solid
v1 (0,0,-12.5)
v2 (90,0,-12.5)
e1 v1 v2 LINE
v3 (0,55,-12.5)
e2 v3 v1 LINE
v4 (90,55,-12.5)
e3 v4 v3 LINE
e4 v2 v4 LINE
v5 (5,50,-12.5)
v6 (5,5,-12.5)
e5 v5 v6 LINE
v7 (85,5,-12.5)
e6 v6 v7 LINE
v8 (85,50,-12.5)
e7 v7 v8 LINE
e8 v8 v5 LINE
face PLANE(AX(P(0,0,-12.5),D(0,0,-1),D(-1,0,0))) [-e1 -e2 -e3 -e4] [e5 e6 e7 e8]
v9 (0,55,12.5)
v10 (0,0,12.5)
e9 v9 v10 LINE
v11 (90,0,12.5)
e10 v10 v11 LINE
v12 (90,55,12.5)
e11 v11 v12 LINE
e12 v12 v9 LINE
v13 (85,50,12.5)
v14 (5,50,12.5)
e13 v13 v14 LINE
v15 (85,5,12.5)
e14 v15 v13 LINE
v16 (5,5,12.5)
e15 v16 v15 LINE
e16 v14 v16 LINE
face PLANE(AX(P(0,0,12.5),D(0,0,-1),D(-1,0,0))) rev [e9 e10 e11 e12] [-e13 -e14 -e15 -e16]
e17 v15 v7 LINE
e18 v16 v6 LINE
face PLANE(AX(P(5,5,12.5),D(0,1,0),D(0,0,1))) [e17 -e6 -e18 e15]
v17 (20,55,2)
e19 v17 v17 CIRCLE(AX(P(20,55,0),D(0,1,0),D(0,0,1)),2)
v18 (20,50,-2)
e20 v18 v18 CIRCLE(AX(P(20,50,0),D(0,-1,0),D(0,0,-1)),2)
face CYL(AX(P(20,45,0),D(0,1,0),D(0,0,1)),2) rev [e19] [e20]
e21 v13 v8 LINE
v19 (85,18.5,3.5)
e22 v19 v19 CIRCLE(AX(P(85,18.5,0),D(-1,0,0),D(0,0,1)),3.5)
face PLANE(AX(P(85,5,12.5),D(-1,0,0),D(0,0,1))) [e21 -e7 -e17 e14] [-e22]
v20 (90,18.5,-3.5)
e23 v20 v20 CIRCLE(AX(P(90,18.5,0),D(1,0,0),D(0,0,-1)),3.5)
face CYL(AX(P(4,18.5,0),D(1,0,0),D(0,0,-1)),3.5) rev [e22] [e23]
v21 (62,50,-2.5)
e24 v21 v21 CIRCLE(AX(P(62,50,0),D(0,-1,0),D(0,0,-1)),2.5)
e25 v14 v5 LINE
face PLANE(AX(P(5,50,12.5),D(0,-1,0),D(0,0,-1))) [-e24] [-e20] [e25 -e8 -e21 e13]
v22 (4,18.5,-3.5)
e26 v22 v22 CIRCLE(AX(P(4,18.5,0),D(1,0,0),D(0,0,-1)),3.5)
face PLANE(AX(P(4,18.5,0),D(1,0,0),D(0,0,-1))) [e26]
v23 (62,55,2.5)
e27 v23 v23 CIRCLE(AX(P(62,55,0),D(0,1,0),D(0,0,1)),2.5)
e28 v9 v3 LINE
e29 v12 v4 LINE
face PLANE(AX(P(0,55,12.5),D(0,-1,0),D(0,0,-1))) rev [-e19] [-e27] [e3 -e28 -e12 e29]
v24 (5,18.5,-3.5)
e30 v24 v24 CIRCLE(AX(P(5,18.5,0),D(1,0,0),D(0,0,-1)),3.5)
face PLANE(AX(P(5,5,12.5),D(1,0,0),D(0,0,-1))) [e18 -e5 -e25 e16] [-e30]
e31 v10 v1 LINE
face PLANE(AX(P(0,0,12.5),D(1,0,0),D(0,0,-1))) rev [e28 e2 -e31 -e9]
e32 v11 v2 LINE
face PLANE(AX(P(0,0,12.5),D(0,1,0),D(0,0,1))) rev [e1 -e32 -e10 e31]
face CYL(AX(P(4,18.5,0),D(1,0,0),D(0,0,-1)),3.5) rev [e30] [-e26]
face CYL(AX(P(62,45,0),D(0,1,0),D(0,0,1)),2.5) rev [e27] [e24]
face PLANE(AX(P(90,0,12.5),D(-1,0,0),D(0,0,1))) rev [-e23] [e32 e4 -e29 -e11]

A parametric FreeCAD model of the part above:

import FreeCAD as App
import Part
import Sketcher
from FreeCAD import Vector
Q = App.Units.Quantity

doc = App.newDocument("Part")
body = doc.addObject("PartDesign::Body", "Body")

# Sketch on XY plane
sketch1 = doc.addObject("Sketcher::SketchObject", "Sketch")
body.addObject(sketch1)
sketch1.AttachmentSupport = (doc.XY_Plane, [""])
sketch1.MapMode = "FlatFace"
sketch1.addGeometry(Part.LineSegment(Vector(0, 55, 0), Vector(0, 0, 0)), False)
sketch1.addGeometry(Part.LineSegment(Vector(0, 0, 0), Vector(90, 0, 0)), False)
sketch1.addGeometry(Part.LineSegment(Vector(90, 0, 0), Vector(90, 55, 0)), False)
sketch1.addGeometry(Part.LineSegment(Vector(90, 55, 0), Vector(0, 55, 0)), False)
sketch1.addGeometry(Part.LineSegment(Vector(85, 5, 0), Vector(5, 5, 0)), False)
sketch1.addGeometry(Part.LineSegment(Vector(5, 5, 0), Vector(5, 50, 0)), False)
sketch1.addGeometry(Part.LineSegment(Vector(5, 50, 0), Vector(85, 50, 0)), False)
sketch1.addGeometry(Part.LineSegment(Vector(85, 50, 0), Vector(85, 5, 0)), False)
sketch1.addConstraint(Sketcher.Constraint("Coincident", 0, 2, 1, 1))
sketch1.addConstraint(Sketcher.Constraint("Coincident", 1, 2, 2, 1))
sketch1.addConstraint(Sketcher.Constraint("Coincident", 2, 2, 3, 1))
sketch1.addConstraint(Sketcher.Constraint("Coincident", 3, 2, 0, 1))
sketch1.addConstraint(Sketcher.Constraint("Coincident", 4, 2, 5, 1))
sketch1.addConstraint(Sketcher.Constraint("Coincident", 5, 2, 6, 1))
sketch1.addConstraint(Sketcher.Constraint("Coincident", 6, 2, 7, 1))
sketch1.addConstraint(Sketcher.Constraint("Coincident", 7, 2, 4, 1))
sketch1.addConstraint(Sketcher.Constraint("Vertical", 0))
sketch1.addConstraint(Sketcher.Constraint("Horizontal", 1))
sketch1.addConstraint(Sketcher.Constraint("Vertical", 2))
sketch1.addConstraint(Sketcher.Constraint("Horizontal", 3))
sketch1.addConstraint(Sketcher.Constraint("Horizontal", 4))
sketch1.addConstraint(Sketcher.Constraint("Vertical", 5))
sketch1.addConstraint(Sketcher.Constraint("Horizontal", 6))
sketch1.addConstraint(Sketcher.Constraint("Vertical", 7))
sketch1.addConstraint(Sketcher.Constraint("Coincident", 0, 2, -1, 1))
sketch1.addConstraint(Sketcher.Constraint("DistanceX", 1, 1, 1, 2, Q("90 mm")))
sketch1.addConstraint(Sketcher.Constraint("DistanceX", 4, 2, 4, 1, Q("80 mm")))
sketch1.addConstraint(Sketcher.Constraint("DistanceY", 0, 2, 0, 1, Q("55 mm")))
sketch1.addConstraint(Sketcher.Constraint("DistanceY", 5, 1, 5, 2, Q("45 mm")))
sketch1.addConstraint(Sketcher.Constraint("DistanceX", -1, 1, 4, 2, Q("5 mm")))
sketch1.addConstraint(Sketcher.Constraint("DistanceY", -1, 1, 4, 2, Q("5 mm")))
pad1 = doc.addObject("PartDesign::Pad", "Pad")
body.addObject(pad1)
pad1.Profile = sketch1
pad1.Length = 25
pad1.Midplane = True

# Sketch on YZ plane
sketch2 = doc.addObject("Sketcher::SketchObject", "Sketch001")
body.addObject(sketch2)
sketch2.AttachmentSupport = (doc.YZ_Plane, [""])
sketch2.MapMode = "FlatFace"
sketch2.AttachmentOffset = App.Placement(Vector(0, 0, 90), App.Rotation())
sketch2.addGeometry(Part.Circle(Vector(18.5, 0, 0), Vector(0, 0, 1), 3.5), False)
sketch2.addConstraint(Sketcher.Constraint("PointOnObject", 0, 3, -1))
sketch2.addConstraint(Sketcher.Constraint("Diameter", 0, Q("7 mm")))
sketch2.addConstraint(Sketcher.Constraint("DistanceX", -1, 1, 0, 3, Q("18.5 mm")))
pocket1 = doc.addObject("PartDesign::Pocket", "Pocket")
body.addObject(pocket1)
pocket1.Profile = sketch2
pocket1.Length = 86

# Sketch on XZ plane
sketch3 = doc.addObject("Sketcher::SketchObject", "Sketch002")
body.addObject(sketch3)
sketch3.AttachmentSupport = (doc.XZ_Plane, [""])
sketch3.MapMode = "FlatFace"
sketch3.AttachmentOffset = App.Placement(Vector(0, 0, -55), App.Rotation())
sketch3.addGeometry(Part.Circle(Vector(20, 0, 0), Vector(0, 0, 1), 2), False)
sketch3.addGeometry(Part.Circle(Vector(62, 0, 0), Vector(0, 0, 1), 2.5), False)
sketch3.addConstraint(Sketcher.Constraint("PointOnObject", 0, 3, -1))
sketch3.addConstraint(Sketcher.Constraint("PointOnObject", 1, 3, -1))
sketch3.addConstraint(Sketcher.Constraint("Diameter", 0, Q("4 mm")))
sketch3.addConstraint(Sketcher.Constraint("Diameter", 1, Q("5 mm")))
sketch3.addConstraint(Sketcher.Constraint("DistanceX", -1, 1, 0, 3, Q("20 mm")))
sketch3.addConstraint(Sketcher.Constraint("DistanceX", -1, 1, 1, 3, Q("62 mm")))
pocket2 = doc.addObject("PartDesign::Pocket", "Pocket001")
body.addObject(pocket2)
pocket2.Profile = sketch3
pocket2.Length = 10
pocket2.Reversed = True

doc.recompute()
